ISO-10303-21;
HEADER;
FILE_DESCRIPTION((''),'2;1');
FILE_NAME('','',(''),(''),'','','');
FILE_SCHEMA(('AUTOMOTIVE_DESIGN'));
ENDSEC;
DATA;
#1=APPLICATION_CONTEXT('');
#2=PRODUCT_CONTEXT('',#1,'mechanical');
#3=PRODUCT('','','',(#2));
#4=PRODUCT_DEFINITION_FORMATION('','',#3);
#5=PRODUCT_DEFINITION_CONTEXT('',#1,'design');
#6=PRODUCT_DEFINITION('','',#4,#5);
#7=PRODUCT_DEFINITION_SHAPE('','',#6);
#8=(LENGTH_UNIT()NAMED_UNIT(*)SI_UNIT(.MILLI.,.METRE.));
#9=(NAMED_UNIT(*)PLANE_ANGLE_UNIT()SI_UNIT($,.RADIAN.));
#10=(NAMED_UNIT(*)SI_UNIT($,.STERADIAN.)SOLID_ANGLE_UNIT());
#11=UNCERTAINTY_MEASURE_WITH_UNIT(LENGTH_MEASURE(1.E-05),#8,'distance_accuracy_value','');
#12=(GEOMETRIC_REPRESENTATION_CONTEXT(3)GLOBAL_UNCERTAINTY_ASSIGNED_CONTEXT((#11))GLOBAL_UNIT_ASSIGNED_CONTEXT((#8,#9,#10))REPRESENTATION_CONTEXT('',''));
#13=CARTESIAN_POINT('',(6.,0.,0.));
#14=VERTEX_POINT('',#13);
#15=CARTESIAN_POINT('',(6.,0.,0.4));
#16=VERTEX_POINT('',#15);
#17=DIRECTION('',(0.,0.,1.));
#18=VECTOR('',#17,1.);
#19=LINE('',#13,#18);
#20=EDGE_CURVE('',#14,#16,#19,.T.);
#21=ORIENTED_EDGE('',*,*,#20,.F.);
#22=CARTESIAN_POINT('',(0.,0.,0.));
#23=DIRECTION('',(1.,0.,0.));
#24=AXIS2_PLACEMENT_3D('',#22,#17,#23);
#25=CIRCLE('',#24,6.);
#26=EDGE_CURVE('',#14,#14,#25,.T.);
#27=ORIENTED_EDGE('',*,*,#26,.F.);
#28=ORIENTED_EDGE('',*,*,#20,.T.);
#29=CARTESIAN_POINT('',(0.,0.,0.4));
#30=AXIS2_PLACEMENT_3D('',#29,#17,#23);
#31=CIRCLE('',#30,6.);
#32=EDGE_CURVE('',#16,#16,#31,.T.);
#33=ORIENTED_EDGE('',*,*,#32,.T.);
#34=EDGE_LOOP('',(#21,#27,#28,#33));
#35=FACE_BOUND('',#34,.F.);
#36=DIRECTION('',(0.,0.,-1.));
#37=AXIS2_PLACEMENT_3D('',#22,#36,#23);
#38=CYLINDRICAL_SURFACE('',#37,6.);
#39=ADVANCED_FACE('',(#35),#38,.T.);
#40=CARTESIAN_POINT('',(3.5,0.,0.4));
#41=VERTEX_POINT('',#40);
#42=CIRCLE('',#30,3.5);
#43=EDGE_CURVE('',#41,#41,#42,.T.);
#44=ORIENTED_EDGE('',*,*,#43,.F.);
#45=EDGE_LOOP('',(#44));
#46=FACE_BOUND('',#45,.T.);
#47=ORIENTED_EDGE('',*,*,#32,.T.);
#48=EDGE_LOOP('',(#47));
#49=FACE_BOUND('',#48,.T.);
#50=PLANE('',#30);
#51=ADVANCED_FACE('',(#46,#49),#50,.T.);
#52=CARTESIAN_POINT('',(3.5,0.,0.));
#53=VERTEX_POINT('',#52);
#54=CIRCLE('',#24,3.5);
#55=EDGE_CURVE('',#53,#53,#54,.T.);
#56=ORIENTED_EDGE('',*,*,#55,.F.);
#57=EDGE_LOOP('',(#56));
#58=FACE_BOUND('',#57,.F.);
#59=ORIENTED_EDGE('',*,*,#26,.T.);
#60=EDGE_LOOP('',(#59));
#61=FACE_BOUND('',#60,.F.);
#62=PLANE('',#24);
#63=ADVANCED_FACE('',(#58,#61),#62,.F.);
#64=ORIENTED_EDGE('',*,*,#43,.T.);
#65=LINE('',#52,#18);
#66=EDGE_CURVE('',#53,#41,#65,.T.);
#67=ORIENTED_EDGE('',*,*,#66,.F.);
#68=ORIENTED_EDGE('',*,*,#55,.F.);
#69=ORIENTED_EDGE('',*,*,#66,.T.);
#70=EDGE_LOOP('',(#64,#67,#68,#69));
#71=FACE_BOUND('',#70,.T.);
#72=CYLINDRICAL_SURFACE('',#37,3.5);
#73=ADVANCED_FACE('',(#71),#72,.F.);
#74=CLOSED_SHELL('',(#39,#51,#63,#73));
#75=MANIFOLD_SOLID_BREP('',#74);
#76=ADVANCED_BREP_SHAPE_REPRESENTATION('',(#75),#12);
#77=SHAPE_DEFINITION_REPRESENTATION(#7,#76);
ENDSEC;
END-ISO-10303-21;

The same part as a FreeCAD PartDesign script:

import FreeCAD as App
import Part
import Sketcher

doc = App.newDocument("Part")
body = doc.addObject("PartDesign::Body", "Body")

# Sketch on XY plane
sketch1 = body.newObject("Sketcher::SketchObject", "Sketch")
sketch1.AttachmentSupport = (doc.getObject("XY_Plane"), [""])
sketch1.MapMode = "FlatFace"
sketch1.addGeometry([
    Part.Circle(App.Vector(0, 0, 0), App.Vector(0, 0, 1), 6),
    Part.Circle(App.Vector(0, 0, 0), App.Vector(0, 0, 1), 3.5),
], False)
sketch1.addConstraint([
    Sketcher.Constraint("Coincident", 0, 3, -1, 1),
    Sketcher.Constraint("Coincident", 1, 3, -1, 1),
    Sketcher.Constraint("Diameter", 0, 12.0),
    Sketcher.Constraint("Diameter", 1, 7.0),
])
pad1 = body.newObject("PartDesign::Pad", "Pad")
pad1.Profile = sketch1
pad1.Length = 0.4

doc.recompute()
